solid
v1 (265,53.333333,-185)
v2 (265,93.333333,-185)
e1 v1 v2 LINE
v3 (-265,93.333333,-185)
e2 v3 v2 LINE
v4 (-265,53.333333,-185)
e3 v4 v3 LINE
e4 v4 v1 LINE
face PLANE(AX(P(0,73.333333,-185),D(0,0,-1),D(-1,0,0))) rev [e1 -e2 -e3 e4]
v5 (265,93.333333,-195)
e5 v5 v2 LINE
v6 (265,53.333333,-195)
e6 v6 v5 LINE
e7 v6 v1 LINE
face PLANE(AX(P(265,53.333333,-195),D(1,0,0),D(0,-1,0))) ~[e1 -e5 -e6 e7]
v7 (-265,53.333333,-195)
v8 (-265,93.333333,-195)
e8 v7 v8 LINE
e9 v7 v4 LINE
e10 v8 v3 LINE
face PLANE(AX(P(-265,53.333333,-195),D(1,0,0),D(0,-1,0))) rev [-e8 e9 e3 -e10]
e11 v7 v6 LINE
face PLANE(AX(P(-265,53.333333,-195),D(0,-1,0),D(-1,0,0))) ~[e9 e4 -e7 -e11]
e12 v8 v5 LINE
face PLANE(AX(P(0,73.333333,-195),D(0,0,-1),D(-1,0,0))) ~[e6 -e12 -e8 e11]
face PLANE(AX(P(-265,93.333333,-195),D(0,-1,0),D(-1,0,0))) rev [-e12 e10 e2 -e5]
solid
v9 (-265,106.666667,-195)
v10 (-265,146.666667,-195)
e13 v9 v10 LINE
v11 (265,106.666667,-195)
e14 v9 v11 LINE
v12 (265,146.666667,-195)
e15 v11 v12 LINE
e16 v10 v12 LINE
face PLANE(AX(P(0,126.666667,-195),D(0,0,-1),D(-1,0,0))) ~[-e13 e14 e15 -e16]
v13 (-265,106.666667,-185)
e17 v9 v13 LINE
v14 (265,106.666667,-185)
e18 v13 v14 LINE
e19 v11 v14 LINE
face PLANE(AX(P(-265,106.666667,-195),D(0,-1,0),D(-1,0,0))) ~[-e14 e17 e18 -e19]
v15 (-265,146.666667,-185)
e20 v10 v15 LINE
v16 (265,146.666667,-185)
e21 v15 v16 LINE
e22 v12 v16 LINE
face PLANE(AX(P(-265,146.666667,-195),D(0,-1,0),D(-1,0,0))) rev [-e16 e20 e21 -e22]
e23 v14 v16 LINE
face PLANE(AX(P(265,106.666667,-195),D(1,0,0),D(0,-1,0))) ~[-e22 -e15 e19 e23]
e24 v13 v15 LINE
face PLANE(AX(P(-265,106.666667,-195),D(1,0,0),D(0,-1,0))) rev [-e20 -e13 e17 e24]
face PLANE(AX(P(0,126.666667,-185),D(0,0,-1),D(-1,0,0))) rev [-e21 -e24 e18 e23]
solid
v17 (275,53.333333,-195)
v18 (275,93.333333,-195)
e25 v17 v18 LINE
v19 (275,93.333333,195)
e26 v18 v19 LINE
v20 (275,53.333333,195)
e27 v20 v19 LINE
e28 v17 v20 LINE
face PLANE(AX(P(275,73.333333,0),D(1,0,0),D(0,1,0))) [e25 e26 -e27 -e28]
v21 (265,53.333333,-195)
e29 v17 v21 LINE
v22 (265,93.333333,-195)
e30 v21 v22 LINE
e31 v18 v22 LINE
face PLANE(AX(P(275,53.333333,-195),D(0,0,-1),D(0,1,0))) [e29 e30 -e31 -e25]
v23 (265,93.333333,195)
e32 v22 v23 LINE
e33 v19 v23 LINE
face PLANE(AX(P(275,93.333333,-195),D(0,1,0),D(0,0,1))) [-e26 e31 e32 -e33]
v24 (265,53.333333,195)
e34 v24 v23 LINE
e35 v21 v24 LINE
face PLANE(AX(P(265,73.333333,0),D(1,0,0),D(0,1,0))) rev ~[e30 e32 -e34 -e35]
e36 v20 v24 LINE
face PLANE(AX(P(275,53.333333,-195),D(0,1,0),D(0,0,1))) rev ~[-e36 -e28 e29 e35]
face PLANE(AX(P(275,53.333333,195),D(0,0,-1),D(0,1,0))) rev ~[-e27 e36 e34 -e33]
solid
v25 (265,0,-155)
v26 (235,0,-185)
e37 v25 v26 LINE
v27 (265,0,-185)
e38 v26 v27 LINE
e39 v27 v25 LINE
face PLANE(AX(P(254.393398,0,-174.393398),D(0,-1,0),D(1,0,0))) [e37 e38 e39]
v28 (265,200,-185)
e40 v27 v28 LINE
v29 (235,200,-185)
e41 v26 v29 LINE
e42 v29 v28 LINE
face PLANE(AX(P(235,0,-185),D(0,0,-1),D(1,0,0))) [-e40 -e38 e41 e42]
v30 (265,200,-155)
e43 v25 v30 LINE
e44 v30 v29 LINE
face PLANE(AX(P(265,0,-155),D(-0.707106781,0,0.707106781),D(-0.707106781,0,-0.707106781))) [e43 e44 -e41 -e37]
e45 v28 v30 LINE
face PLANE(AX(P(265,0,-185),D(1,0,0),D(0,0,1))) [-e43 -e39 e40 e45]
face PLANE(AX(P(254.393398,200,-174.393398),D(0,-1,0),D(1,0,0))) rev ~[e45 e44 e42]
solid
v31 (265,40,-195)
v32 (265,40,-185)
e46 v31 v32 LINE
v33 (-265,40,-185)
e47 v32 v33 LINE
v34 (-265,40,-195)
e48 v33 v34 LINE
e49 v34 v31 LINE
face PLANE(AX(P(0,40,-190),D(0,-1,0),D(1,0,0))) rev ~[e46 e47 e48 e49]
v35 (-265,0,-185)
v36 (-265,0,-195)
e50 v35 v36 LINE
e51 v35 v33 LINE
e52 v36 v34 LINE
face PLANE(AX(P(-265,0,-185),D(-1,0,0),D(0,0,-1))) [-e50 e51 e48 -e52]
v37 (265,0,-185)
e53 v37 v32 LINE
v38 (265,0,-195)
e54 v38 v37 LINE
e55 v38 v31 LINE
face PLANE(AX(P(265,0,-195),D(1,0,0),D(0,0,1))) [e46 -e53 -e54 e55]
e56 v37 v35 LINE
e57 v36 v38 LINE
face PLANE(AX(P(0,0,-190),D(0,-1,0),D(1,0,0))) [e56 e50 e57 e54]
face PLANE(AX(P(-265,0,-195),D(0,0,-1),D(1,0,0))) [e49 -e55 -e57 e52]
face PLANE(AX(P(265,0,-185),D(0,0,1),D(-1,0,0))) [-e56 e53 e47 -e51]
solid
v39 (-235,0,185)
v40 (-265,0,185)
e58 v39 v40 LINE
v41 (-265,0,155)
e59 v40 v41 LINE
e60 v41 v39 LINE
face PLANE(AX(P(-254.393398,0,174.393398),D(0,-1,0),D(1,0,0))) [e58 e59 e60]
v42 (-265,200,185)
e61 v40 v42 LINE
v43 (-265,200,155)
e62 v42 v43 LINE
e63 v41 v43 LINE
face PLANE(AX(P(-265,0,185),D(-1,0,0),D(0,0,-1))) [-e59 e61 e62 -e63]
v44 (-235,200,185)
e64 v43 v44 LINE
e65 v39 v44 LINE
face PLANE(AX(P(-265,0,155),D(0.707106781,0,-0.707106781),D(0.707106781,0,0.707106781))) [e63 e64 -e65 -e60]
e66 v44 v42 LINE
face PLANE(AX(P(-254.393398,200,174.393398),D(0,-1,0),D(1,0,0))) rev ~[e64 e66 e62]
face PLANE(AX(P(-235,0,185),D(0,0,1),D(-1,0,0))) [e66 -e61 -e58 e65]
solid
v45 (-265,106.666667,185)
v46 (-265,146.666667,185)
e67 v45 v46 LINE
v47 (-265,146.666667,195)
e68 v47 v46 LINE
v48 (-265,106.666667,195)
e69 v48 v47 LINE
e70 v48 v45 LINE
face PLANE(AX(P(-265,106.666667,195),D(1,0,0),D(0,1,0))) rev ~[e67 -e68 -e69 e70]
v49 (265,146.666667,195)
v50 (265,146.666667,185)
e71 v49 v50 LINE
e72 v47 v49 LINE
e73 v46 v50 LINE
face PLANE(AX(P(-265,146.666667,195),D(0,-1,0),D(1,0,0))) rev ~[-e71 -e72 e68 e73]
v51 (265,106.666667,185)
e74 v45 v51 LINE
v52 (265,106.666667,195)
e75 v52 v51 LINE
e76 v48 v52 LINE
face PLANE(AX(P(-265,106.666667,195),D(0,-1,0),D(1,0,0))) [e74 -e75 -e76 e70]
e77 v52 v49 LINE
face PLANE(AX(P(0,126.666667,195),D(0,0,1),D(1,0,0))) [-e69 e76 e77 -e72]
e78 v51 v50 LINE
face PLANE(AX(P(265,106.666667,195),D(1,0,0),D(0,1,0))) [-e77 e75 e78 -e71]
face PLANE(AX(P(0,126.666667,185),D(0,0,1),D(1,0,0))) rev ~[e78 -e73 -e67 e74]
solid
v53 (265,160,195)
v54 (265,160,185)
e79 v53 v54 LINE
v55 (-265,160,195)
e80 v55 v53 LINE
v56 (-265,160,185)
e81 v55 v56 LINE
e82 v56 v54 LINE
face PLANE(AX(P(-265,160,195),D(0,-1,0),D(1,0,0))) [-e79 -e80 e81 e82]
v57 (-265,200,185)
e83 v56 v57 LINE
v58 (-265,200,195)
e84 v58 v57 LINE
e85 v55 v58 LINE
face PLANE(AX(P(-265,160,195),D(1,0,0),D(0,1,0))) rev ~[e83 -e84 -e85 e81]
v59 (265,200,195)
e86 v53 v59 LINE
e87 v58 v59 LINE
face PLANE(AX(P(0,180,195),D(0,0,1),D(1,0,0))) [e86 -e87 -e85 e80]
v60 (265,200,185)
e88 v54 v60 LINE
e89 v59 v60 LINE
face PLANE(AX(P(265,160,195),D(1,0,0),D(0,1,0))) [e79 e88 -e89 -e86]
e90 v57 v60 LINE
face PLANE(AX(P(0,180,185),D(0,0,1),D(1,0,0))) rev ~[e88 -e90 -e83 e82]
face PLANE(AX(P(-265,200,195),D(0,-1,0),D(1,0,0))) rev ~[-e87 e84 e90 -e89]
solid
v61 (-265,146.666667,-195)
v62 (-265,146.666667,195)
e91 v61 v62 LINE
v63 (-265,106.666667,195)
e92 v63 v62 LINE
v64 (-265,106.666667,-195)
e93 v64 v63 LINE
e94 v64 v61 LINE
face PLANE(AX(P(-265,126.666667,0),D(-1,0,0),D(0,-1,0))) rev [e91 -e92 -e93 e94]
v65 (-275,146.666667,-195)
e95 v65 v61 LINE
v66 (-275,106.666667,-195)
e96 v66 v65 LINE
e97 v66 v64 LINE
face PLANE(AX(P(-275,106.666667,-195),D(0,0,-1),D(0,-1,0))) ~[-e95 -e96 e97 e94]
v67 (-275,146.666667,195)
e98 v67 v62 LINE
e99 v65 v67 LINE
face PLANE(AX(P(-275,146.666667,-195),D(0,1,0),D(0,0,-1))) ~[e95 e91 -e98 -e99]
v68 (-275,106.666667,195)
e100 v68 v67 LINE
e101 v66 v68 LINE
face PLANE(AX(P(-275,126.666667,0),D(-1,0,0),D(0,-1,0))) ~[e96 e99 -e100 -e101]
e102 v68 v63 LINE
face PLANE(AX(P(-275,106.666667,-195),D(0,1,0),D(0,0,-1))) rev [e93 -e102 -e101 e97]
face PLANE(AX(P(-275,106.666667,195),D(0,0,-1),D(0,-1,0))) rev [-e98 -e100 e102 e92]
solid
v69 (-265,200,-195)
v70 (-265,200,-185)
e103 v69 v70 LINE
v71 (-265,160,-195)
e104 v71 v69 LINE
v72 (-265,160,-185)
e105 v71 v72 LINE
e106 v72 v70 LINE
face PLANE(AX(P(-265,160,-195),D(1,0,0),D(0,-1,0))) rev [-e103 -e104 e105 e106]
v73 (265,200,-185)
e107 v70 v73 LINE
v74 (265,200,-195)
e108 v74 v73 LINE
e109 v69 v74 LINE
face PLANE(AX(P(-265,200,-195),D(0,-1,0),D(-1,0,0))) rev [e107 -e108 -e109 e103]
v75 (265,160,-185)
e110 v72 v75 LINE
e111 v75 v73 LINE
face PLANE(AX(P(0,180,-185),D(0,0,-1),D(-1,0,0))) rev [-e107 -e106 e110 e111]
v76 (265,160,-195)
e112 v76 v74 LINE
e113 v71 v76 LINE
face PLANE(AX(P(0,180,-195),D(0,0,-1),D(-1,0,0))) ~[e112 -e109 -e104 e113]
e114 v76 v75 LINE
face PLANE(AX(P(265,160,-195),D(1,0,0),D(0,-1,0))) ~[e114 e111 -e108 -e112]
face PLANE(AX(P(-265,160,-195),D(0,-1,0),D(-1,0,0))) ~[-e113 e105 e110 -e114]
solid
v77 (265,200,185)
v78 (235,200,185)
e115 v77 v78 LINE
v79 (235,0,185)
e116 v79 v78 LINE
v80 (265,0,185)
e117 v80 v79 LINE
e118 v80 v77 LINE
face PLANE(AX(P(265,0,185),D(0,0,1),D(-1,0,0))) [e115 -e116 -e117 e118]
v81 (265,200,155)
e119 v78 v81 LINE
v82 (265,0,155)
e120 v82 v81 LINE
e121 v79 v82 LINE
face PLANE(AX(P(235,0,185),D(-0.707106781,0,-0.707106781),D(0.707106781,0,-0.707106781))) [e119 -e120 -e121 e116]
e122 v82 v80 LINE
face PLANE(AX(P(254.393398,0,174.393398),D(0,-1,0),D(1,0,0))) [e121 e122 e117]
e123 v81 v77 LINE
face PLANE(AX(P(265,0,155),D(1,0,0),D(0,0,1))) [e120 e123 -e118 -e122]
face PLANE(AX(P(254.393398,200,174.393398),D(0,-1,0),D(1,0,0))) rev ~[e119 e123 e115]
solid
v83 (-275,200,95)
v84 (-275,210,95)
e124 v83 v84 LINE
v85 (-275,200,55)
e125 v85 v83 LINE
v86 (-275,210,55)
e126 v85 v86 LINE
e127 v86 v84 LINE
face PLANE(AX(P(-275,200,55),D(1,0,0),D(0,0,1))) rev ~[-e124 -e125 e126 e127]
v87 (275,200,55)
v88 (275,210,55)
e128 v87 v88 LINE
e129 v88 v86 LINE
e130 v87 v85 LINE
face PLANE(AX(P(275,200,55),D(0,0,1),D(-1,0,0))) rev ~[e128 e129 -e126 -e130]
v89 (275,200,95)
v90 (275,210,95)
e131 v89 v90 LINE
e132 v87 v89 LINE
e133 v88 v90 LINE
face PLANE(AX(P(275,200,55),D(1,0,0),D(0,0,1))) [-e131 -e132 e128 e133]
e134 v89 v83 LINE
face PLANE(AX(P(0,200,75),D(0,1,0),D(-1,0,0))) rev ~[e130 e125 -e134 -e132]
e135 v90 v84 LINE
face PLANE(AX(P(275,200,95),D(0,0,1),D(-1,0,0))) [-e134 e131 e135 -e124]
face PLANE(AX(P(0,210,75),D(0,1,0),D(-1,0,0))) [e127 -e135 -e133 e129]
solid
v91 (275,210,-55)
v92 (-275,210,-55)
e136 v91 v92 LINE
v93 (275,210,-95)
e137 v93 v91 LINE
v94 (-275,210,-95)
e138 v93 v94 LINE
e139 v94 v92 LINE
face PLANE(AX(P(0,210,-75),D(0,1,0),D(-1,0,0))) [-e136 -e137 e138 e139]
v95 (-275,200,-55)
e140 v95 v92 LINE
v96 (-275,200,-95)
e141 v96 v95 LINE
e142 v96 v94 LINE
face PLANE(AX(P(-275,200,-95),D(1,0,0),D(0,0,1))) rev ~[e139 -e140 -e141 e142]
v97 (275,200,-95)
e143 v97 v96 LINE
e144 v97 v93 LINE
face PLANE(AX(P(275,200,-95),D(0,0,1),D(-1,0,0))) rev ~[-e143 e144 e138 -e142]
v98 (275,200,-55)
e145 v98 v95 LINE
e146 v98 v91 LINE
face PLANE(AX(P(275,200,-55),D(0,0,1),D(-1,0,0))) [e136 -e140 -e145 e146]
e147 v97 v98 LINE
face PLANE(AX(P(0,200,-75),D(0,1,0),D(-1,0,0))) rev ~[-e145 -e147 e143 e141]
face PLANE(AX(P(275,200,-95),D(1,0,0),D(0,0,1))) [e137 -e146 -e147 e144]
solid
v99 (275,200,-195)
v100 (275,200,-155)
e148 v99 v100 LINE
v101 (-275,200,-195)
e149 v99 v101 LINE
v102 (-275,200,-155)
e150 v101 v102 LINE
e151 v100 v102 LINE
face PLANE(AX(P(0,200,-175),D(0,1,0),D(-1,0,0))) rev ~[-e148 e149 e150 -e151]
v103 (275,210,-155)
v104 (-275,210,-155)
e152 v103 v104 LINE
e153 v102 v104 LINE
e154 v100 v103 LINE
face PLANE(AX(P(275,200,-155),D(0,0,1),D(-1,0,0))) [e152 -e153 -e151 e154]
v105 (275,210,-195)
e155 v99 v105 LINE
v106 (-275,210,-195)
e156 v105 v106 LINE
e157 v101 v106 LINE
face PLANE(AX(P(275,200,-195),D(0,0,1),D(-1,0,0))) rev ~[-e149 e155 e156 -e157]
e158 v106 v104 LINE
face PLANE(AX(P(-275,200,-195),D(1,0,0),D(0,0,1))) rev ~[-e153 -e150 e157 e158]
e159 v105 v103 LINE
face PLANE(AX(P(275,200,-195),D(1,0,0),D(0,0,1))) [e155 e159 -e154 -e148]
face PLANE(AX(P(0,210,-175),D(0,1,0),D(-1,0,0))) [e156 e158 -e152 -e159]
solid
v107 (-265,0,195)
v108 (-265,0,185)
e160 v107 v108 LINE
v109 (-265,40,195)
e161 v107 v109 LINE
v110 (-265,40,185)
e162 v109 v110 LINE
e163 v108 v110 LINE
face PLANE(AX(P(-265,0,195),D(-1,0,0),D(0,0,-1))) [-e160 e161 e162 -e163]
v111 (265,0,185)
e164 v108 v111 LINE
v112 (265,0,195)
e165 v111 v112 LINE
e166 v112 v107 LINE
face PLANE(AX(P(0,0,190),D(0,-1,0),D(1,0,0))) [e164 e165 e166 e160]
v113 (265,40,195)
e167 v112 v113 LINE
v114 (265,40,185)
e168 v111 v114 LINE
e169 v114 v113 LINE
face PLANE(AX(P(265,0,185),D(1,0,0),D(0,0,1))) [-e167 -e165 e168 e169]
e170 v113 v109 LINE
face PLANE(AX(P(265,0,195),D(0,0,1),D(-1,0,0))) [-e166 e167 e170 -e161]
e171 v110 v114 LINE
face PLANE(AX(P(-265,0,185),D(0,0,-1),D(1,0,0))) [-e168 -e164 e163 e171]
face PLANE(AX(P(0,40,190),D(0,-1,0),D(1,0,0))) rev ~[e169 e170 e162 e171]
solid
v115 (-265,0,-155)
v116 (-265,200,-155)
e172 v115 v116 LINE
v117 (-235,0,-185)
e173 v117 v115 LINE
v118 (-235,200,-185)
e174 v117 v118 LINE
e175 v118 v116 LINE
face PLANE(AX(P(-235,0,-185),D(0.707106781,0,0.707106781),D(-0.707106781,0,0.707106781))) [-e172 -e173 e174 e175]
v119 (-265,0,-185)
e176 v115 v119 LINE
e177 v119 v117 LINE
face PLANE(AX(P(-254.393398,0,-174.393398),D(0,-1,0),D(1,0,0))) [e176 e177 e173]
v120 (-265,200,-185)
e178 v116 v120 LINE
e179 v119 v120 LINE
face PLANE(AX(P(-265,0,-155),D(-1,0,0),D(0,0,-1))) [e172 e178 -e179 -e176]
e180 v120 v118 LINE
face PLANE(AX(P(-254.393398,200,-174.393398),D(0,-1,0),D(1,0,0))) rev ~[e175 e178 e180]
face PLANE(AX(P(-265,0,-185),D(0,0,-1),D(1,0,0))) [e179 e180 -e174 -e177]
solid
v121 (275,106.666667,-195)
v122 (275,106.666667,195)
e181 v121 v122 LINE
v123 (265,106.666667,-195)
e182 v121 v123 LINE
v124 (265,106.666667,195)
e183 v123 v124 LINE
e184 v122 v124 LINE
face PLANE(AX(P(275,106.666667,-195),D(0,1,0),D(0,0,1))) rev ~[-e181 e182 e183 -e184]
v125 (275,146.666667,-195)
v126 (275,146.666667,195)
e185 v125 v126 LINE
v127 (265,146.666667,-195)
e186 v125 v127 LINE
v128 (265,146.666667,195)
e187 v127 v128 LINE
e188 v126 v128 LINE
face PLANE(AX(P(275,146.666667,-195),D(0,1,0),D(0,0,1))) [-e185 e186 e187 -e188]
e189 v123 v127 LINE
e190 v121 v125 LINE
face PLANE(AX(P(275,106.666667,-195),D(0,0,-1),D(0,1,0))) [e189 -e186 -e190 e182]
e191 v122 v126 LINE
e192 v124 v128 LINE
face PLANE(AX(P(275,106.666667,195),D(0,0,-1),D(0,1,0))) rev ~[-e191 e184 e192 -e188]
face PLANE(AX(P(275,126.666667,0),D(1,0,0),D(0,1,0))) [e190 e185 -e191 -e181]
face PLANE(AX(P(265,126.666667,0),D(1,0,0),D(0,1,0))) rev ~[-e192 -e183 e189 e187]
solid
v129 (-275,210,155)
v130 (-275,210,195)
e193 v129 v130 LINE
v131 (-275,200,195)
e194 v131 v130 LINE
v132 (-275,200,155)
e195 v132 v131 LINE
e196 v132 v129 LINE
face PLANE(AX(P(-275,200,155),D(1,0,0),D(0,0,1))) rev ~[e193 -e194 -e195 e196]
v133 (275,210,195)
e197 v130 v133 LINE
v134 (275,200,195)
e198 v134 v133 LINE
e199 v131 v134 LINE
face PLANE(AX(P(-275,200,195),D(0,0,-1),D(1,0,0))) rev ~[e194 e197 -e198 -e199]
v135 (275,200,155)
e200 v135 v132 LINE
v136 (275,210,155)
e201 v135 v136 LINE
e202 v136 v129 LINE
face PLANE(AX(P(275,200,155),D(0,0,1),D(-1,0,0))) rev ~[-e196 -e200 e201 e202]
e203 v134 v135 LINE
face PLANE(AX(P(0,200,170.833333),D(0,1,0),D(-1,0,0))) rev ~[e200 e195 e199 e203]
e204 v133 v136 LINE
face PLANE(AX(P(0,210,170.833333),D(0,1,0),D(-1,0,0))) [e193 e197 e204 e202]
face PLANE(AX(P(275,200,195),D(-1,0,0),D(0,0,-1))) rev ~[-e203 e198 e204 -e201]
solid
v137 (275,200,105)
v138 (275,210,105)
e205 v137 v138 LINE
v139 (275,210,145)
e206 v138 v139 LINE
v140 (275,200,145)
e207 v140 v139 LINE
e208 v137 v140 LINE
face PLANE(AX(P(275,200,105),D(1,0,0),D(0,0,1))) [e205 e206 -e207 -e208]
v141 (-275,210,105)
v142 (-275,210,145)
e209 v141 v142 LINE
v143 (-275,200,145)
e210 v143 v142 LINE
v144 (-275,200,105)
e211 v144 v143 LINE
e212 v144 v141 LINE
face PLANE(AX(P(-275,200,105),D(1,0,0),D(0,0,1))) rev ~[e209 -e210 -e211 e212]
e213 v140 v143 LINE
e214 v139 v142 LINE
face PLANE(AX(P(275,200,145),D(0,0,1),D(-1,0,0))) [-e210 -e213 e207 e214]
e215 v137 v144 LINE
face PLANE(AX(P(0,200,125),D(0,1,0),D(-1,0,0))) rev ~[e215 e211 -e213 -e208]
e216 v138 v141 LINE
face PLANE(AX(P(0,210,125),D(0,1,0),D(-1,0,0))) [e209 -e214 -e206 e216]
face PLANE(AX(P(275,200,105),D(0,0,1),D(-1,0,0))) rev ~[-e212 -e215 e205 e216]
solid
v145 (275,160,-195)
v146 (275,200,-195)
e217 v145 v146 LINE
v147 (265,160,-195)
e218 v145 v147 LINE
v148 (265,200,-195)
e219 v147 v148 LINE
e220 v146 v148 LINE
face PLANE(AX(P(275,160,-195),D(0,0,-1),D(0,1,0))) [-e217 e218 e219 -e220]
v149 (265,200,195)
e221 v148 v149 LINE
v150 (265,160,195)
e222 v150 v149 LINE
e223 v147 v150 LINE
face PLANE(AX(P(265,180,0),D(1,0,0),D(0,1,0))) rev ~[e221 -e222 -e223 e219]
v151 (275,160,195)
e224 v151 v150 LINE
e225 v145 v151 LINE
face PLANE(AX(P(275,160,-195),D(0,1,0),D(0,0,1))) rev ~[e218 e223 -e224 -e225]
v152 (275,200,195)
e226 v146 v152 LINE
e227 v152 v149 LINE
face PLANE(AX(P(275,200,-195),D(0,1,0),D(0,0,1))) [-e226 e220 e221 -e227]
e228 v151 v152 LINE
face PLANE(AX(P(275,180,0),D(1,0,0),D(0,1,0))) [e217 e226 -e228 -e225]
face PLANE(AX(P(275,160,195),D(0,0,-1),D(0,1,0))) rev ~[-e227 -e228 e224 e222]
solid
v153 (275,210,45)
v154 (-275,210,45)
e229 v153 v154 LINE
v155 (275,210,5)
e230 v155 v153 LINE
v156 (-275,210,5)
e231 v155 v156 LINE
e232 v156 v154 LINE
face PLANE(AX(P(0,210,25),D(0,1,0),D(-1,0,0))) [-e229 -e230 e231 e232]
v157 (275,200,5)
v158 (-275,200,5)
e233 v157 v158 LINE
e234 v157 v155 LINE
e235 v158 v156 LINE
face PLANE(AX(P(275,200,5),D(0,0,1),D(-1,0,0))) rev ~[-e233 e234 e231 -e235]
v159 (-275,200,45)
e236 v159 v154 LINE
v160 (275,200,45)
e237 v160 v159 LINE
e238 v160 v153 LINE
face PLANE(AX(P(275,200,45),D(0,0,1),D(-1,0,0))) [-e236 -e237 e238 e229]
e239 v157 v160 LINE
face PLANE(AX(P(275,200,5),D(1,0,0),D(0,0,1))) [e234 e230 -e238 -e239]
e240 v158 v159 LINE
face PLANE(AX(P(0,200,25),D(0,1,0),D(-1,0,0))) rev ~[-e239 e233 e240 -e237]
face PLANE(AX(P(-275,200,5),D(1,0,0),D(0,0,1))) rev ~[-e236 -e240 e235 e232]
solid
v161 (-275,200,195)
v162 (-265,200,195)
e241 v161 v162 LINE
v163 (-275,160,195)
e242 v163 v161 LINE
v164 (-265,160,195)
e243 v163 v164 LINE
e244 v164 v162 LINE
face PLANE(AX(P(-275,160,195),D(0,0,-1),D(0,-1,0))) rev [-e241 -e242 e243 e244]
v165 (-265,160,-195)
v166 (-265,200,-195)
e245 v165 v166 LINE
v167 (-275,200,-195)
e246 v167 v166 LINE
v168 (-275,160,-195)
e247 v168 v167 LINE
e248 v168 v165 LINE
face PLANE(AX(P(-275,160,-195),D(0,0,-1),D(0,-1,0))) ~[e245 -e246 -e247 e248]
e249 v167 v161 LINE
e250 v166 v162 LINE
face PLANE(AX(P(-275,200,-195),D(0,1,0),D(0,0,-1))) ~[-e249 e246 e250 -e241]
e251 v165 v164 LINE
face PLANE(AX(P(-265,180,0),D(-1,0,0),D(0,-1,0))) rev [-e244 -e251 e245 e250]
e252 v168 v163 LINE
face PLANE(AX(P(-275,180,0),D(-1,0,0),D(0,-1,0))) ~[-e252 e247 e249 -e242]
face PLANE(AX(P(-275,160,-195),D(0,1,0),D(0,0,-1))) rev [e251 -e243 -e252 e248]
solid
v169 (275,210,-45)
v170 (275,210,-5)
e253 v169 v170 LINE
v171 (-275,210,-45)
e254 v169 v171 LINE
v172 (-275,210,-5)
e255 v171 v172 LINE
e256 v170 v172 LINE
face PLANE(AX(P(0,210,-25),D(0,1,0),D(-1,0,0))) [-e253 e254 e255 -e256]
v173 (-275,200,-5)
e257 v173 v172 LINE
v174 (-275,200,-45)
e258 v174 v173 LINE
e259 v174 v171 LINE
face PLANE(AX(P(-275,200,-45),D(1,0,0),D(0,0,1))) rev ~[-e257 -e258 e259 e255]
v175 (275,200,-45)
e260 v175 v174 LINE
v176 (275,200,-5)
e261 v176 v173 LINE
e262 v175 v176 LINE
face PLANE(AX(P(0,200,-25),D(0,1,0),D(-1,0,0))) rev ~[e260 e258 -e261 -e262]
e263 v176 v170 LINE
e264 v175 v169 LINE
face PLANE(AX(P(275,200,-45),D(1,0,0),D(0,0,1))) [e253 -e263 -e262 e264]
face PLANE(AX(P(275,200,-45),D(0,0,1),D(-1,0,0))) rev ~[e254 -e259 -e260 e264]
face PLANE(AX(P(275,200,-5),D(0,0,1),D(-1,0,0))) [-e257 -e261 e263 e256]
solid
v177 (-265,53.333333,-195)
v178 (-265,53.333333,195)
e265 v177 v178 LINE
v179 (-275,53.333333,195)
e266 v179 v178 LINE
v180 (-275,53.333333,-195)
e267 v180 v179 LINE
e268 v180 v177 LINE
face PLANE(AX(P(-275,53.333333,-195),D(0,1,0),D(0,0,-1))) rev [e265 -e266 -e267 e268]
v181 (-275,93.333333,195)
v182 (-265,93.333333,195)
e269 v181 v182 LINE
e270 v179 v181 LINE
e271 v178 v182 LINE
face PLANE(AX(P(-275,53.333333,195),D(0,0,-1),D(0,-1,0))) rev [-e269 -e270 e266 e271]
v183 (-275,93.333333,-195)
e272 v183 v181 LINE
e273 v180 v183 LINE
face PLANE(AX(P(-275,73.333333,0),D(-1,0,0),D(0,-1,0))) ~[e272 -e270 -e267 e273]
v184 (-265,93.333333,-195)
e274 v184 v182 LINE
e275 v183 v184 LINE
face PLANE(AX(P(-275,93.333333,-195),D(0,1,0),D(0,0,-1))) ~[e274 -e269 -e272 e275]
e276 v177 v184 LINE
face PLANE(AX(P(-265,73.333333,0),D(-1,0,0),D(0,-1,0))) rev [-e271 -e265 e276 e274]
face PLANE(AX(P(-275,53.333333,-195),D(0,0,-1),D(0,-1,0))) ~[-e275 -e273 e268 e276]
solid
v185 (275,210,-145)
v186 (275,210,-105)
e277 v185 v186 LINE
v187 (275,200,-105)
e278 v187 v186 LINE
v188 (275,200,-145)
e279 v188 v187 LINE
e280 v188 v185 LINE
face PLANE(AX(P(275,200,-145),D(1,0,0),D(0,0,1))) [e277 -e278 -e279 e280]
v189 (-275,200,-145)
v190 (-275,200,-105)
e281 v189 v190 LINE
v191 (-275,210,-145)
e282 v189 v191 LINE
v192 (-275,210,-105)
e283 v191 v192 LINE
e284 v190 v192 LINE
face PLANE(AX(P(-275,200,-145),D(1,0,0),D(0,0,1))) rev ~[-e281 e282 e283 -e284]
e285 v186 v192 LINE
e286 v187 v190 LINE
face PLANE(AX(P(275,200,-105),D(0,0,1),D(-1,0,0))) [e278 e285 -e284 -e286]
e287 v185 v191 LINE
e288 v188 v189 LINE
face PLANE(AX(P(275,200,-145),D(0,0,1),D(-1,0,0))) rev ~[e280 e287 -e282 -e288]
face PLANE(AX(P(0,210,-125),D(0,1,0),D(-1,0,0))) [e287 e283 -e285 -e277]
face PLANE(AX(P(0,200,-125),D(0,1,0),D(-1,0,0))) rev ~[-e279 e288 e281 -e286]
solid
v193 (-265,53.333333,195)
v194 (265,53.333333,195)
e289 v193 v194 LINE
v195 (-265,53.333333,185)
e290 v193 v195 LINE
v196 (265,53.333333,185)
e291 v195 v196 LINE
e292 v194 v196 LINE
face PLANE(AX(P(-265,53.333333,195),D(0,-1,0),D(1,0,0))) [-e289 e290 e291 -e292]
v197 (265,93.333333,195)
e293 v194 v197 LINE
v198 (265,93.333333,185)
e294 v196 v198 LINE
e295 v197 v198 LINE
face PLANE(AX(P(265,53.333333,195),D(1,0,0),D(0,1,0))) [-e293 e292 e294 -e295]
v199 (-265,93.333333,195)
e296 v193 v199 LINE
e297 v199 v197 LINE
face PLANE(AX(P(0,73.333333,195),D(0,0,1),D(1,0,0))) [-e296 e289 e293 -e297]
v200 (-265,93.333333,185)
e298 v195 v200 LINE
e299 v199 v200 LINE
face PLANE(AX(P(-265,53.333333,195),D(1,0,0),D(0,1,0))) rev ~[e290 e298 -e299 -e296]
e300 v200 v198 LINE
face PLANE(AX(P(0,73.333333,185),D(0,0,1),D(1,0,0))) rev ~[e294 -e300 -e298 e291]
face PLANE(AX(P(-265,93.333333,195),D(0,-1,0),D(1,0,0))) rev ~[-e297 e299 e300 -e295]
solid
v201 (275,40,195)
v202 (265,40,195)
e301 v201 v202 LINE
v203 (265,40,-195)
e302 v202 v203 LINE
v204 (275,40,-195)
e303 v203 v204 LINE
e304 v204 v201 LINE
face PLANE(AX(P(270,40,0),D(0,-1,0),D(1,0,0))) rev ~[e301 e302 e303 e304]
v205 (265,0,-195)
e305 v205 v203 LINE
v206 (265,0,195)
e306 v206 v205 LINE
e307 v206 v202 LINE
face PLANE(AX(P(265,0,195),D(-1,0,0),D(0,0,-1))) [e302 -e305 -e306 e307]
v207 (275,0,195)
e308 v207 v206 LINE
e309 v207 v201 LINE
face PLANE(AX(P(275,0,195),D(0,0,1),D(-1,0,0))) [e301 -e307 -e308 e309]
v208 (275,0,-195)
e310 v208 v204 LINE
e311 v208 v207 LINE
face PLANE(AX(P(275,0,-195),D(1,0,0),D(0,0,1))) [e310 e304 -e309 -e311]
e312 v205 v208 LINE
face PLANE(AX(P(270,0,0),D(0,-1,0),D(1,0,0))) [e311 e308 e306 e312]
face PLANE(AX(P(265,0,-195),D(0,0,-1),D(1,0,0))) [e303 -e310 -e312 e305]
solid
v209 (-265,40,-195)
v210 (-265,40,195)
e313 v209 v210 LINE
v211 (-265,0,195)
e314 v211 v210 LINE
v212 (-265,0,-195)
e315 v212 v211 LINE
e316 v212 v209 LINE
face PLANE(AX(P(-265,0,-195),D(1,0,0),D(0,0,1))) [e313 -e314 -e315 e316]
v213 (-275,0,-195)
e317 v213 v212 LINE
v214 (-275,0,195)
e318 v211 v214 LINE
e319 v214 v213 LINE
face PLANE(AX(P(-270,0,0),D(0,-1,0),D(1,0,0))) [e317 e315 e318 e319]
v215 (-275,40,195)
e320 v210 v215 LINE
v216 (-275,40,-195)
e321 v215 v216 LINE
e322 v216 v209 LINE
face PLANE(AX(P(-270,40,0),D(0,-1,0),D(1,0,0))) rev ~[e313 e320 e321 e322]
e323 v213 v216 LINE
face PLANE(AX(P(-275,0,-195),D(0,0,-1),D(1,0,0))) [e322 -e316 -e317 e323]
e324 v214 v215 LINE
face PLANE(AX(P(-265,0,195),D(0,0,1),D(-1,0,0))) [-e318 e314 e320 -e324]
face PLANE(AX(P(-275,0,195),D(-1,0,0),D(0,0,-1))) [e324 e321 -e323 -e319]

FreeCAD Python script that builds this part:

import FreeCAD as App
import Part
import Sketcher

V = App.Vector


def add_polygon(sketch, points):
    """Adds a closed chain of lines whose ends are joined by coincident constraints."""
    first, n = sketch.GeometryCount, len(points)
    for a, b in zip(points, points[1:] + points[:1]):
        sketch.addGeometry(Part.LineSegment(App.Vector(*a, 0), App.Vector(*b, 0)), False)
    for i in range(n):
        sketch.addConstraint(Sketcher.Constraint("Coincident", first + i, 2, first + (i + 1) % n, 1))

doc = App.newDocument("Part")
body = doc.addObject("PartDesign::Body", "Body")

sketch1 = body.newObject("Sketcher::SketchObject", "Sketch")
sketch1.AttachmentSupport = (doc.getObject("XZ_Plane"), [""])
sketch1.MapMode = "FlatFace"
add_polygon(sketch1, [(-265, 195), (-275, 195), (-275, -195), (-265, -195)])
sketch1.addConstraint(Sketcher.Constraint("Horizontal", 0))
sketch1.addConstraint(Sketcher.Constraint("Vertical", 1))
sketch1.addConstraint(Sketcher.Constraint("Horizontal", 2))
sketch1.addConstraint(Sketcher.Constraint("Vertical", 3))
sketch1.addConstraint(Sketcher.Constraint("DistanceX", 0, 2, 0, 1, 10.0))
sketch1.addConstraint(Sketcher.Constraint("DistanceY", 1, 2, 1, 1, 390.0))
sketch1.addConstraint(Sketcher.Constraint("DistanceX", 0, 2, -1, 1, 275.0))
sketch1.addConstraint(Sketcher.Constraint("DistanceY", -1, 1, 0, 2, 195.0))
pad1 = body.newObject("PartDesign::Pad", "Pad")
pad1.Profile = sketch1
pad1.Length = 40
pad1.Reversed = True
body2 = doc.addObject("PartDesign::Body", "Body001")

sketch2 = body2.newObject("Sketcher::SketchObject", "Sketch001")
sketch2.AttachmentSupport = (doc.getObject("XZ_Plane001"), [""])
sketch2.MapMode = "FlatFace"
add_polygon(sketch2, [(275, 195), (265, 195), (265, -195), (275, -195)])
sketch2.addConstraint(Sketcher.Constraint("Horizontal", 0))
sketch2.addConstraint(Sketcher.Constraint("Vertical", 1))
sketch2.addConstraint(Sketcher.Constraint("Horizontal", 2))
sketch2.addConstraint(Sketcher.Constraint("Vertical", 3))
sketch2.addConstraint(Sketcher.Constraint("DistanceX", 0, 2, 0, 1, 10.0))
sketch2.addConstraint(Sketcher.Constraint("DistanceY", 1, 2, 1, 1, 390.0))
sketch2.addConstraint(Sketcher.Constraint("DistanceX", -1, 1, 0, 2, 265.0))
sketch2.addConstraint(Sketcher.Constraint("DistanceY", -1, 1, 0, 2, 195.0))
pad2 = body2.newObject("PartDesign::Pad", "Pad001")
pad2.Profile = sketch2
pad2.Length = 40
pad2.Reversed = True
body3 = doc.addObject("PartDesign::Body", "Body002")

sketch3 = body3.newObject("Sketcher::SketchObject", "Sketch002")
sketch3.AttachmentSupport = (doc.getObject("XZ_Plane002"), [""])
sketch3.MapMode = "FlatFace"
add_polygon(sketch3, [(-235, 185), (-265, 185), (-265, 155)])
sketch3.addConstraint(Sketcher.Constraint("Horizontal", 0))
sketch3.addConstraint(Sketcher.Constraint("Vertical", 1))
sketch3.addConstraint(Sketcher.Constraint("Equal", 0, 1))
sketch3.addConstraint(Sketcher.Constraint("DistanceX", 0, 2, 0, 1, 30.0))
sketch3.addConstraint(Sketcher.Constraint("DistanceX", 0, 2, -1, 1, 265.0))
sketch3.addConstraint(Sketcher.Constraint("DistanceY", -1, 1, 0, 2, 185.0))
pad3 = body3.newObject("PartDesign::Pad", "Pad002")
pad3.Profile = sketch3
pad3.Length = 200
pad3.Reversed = True
body4 = doc.addObject("PartDesign::Body", "Body003")

sketch4 = body4.newObject("Sketcher::SketchObject", "Sketch003")
sketch4.AttachmentSupport = (doc.getObject("XZ_Plane003"), [""])
sketch4.MapMode = "FlatFace"
add_polygon(sketch4, [(265, 155), (265, 185), (235, 185)])
sketch4.addConstraint(Sketcher.Constraint("Vertical", 0))
sketch4.addConstraint(Sketcher.Constraint("Horizontal", 1))
sketch4.addConstraint(Sketcher.Constraint("Equal", 1, 0))
sketch4.addConstraint(Sketcher.Constraint("DistanceX", 1, 2, 1, 1, 30.0))
sketch4.addConstraint(Sketcher.Constraint("DistanceX", -1, 1, 0, 2, 265.0))
sketch4.addConstraint(Sketcher.Constraint("DistanceY", -1, 1, 0, 2, 185.0))
pad4 = body4.newObject("PartDesign::Pad", "Pad003")
pad4.Profile = sketch4
pad4.Length = 200
pad4.Reversed = True
body5 = doc.addObject("PartDesign::Body", "Body004")

sketch5 = body5.newObject("Sketcher::SketchObject", "Sketch004")
sketch5.AttachmentSupport = (doc.getObject("XZ_Plane004"), [""])
sketch5.MapMode = "FlatFace"
add_polygon(sketch5, [(235, -185), (265, -185), (265, -155)])
sketch5.addConstraint(Sketcher.Constraint("Horizontal", 0))
sketch5.addConstraint(Sketcher.Constraint("Vertical", 1))
sketch5.addConstraint(Sketcher.Constraint("Equal", 0, 1))
sketch5.addConstraint(Sketcher.Constraint("DistanceX", 0, 1, 0, 2, 30.0))
sketch5.addConstraint(Sketcher.Constraint("DistanceX", -1, 1, 0, 2, 265.0))
sketch5.addConstraint(Sketcher.Constraint("DistanceY", 0, 2, -1, 1, 185.0))
pad5 = body5.newObject("PartDesign::Pad", "Pad004")
pad5.Profile = sketch5
pad5.Length = 200
pad5.Reversed = True
body6 = doc.addObject("PartDesign::Body", "Body005")

sketch6 = body6.newObject("Sketcher::SketchObject", "Sketch005")
sketch6.AttachmentSupport = (doc.getObject("XZ_Plane005"), [""])
sketch6.MapMode = "FlatFace"
add_polygon(sketch6, [(-265, -155), (-265, -185), (-235, -185)])
sketch6.addConstraint(Sketcher.Constraint("Vertical", 0))
sketch6.addConstraint(Sketcher.Constraint("Horizontal", 1))
sketch6.addConstraint(Sketcher.Constraint("Equal", 1, 0))
sketch6.addConstraint(Sketcher.Constraint("DistanceX", 1, 1, 1, 2, 30.0))
sketch6.addConstraint(Sketcher.Constraint("DistanceX", 0, 2, -1, 1, 265.0))
sketch6.addConstraint(Sketcher.Constraint("DistanceY", 0, 2, -1, 1, 185.0))
pad6 = body6.newObject("PartDesign::Pad", "Pad005")
pad6.Profile = sketch6
pad6.Length = 200
pad6.Reversed = True
body7 = doc.addObject("PartDesign::Body", "Body006")

sketch7 = body7.newObject("Sketcher::SketchObject", "Sketch006")
sketch7.AttachmentSupport = (doc.getObject("XZ_Plane006"), [""])
sketch7.MapMode = "FlatFace"
add_polygon(sketch7, [(265, 195), (-265, 195), (-265, 185), (265, 185)])
sketch7.addConstraint(Sketcher.Constraint("Horizontal", 0))
sketch7.addConstraint(Sketcher.Constraint("Vertical", 1))
sketch7.addConstraint(Sketcher.Constraint("Horizontal", 2))
sketch7.addConstraint(Sketcher.Constraint("Vertical", 3))
sketch7.addConstraint(Sketcher.Constraint("DistanceX", 0, 2, 0, 1, 530.0))
sketch7.addConstraint(Sketcher.Constraint("DistanceY", 1, 2, 1, 1, 10.0))
sketch7.addConstraint(Sketcher.Constraint("DistanceX", 0, 2, -1, 1, 265.0))
sketch7.addConstraint(Sketcher.Constraint("DistanceY", -1, 1, 0, 2, 195.0))
pad7 = body7.newObject("PartDesign::Pad", "Pad006")
pad7.Profile = sketch7
pad7.Length = 40
pad7.Reversed = True
body8 = doc.addObject("PartDesign::Body", "Body007")

sketch8 = body8.newObject("Sketcher::SketchObject", "Sketch007")
sketch8.AttachmentSupport = (doc.getObject("XZ_Plane007"), [""])
sketch8.MapMode = "FlatFace"
add_polygon(sketch8, [(-265, -185), (-265, -195), (265, -195), (265, -185)])
sketch8.addConstraint(Sketcher.Constraint("Vertical", 0))
sketch8.addConstraint(Sketcher.Constraint("Horizontal", 1))
sketch8.addConstraint(Sketcher.Constraint("Vertical", 2))
sketch8.addConstraint(Sketcher.Constraint("Horizontal", 3))
sketch8.addConstraint(Sketcher.Constraint("DistanceX", 1, 1, 1, 2, 530.0))
sketch8.addConstraint(Sketcher.Constraint("DistanceY", 0, 2, 0, 1, 10.0))
sketch8.addConstraint(Sketcher.Constraint("DistanceX", 0, 2, -1, 1, 265.0))
sketch8.addConstraint(Sketcher.Constraint("DistanceY", 0, 2, -1, 1, 195.0))
pad8 = body8.newObject("PartDesign::Pad", "Pad007")
pad8.Profile = sketch8
pad8.Length = 40
pad8.Reversed = True
body9 = doc.addObject("PartDesign::Body", "Body008")

sketch9 = body9.newObject("Sketcher::SketchObject", "Sketch008")
sketch9.AttachmentSupport = (doc.getObject("YZ_Plane008"), [""])
sketch9.MapMode = "FlatFace"
sketch9.AttachmentOffset = App.Placement(V(0, 0, 275), App.Rotation())
add_polygon(sketch9, [(53, 195), (53, -195), (93, -195), (93, 195)])
sketch9.addConstraint(Sketcher.Constraint("Vertical", 0))
sketch9.addConstraint(Sketcher.Constraint("Horizontal", 1))
sketch9.addConstraint(Sketcher.Constraint("Vertical", 2))
sketch9.addConstraint(Sketcher.Constraint("Horizontal", 3))
sketch9.addConstraint(Sketcher.Constraint("DistanceX", 1, 1, 1, 2, 40.0))
sketch9.addConstraint(Sketcher.Constraint("DistanceY", 0, 2, 0, 1, 390.0))
sketch9.addConstraint(Sketcher.Constraint("DistanceY", 0, 2, -1, 1, 195.0))
sketch9.addConstraint(Sketcher.Constraint("DistanceX", -1, 1, 0, 2, 53.333333))
pad9 = body9.newObject("PartDesign::Pad", "Pad008")
pad9.Profile = sketch9
pad9.Length = 10
pad9.Reversed = True
body10 = doc.addObject("PartDesign::Body", "Body009")

sketch10 = body10.newObject("Sketcher::SketchObject", "Sketch009")
sketch10.AttachmentSupport = (doc.getObject("YZ_Plane009"), [""])
sketch10.MapMode = "FlatFace"
sketch10.AttachmentOffset = App.Placement(V(0, 0, 275), App.Rotation())
add_polygon(sketch10, [(107, 195), (107, -195), (147, -195), (147, 195)])
sketch10.addConstraint(Sketcher.Constraint("Vertical", 0))
sketch10.addConstraint(Sketcher.Constraint("Horizontal", 1))
sketch10.addConstraint(Sketcher.Constraint("Vertical", 2))
sketch10.addConstraint(Sketcher.Constraint("Horizontal", 3))
sketch10.addConstraint(Sketcher.Constraint("DistanceX", 1, 1, 1, 2, 40.0))
sketch10.addConstraint(Sketcher.Constraint("DistanceY", 0, 2, 0, 1, 390.0))
sketch10.addConstraint(Sketcher.Constraint("DistanceY", 0, 2, -1, 1, 195.0))
sketch10.addConstraint(Sketcher.Constraint("DistanceX", -1, 1, 0, 2, 106.666667))
pad10 = body10.newObject("PartDesign::Pad", "Pad009")
pad10.Profile = sketch10
pad10.Length = 10
pad10.Reversed = True
body11 = doc.addObject("PartDesign::Body", "Body010")

sketch11 = body11.newObject("Sketcher::SketchObject", "Sketch010")
sketch11.AttachmentSupport = (doc.getObject("YZ_Plane010"), [""])
sketch11.MapMode = "FlatFace"
sketch11.AttachmentOffset = App.Placement(V(0, 0, 275), App.Rotation())
add_polygon(sketch11, [(160, 195), (160, -195), (200, -195), (200, 195)])
sketch11.addConstraint(Sketcher.Constraint("Vertical", 0))
sketch11.addConstraint(Sketcher.Constraint("Horizontal", 1))
sketch11.addConstraint(Sketcher.Constraint("Vertical", 2))
sketch11.addConstraint(Sketcher.Constraint("Horizontal", 3))
sketch11.addConstraint(Sketcher.Constraint("DistanceX", 1, 1, 1, 2, 40.0))
sketch11.addConstraint(Sketcher.Constraint("DistanceY", 0, 2, 0, 1, 390.0))
sketch11.addConstraint(Sketcher.Constraint("DistanceX", -1, 1, 0, 2, 160.0))
sketch11.addConstraint(Sketcher.Constraint("DistanceY", 0, 2, -1, 1, 195.0))
pad11 = body11.newObject("PartDesign::Pad", "Pad010")
pad11.Profile = sketch11
pad11.Length = 10
pad11.Reversed = True
body12 = doc.addObject("PartDesign::Body", "Body011")
doc.recompute()

mirroring = doc.addObject("Part::Mirroring", "Mirroring")
mirroring.Source = body9
mirroring.Base = V(0, 0, 0)
mirroring.Normal = V(1, 0, 0)
body12.BaseFeature = mirroring
doc.recompute()
body13 = doc.addObject("PartDesign::Body", "Body012")
doc.recompute()

mirroring2 = doc.addObject("Part::Mirroring", "Mirroring001")
mirroring2.Source = body10
mirroring2.Base = V(0, 0, 0)
mirroring2.Normal = V(1, 0, 0)
body13.BaseFeature = mirroring2
doc.recompute()
body14 = doc.addObject("PartDesign::Body", "Body013")
doc.recompute()

mirroring3 = doc.addObject("Part::Mirroring", "Mirroring002")
mirroring3.Source = body11
mirroring3.Base = V(0, 0, 0)
mirroring3.Normal = V(1, 0, 0)
body14.BaseFeature = mirroring3
doc.recompute()
body15 = doc.addObject("PartDesign::Body", "Body014")

sketch12 = body15.newObject("Sketcher::SketchObject", "Sketch011")
sketch12.AttachmentSupport = (doc.getObject("XY_Plane014"), [""])
sketch12.MapMode = "FlatFace"
sketch12.AttachmentOffset = App.Placement(V(0, 0, 195), App.Rotation())
add_polygon(sketch12, [(-265, 93), (-265, 53), (265, 53), (265, 93)])
sketch12.addConstraint(Sketcher.Constraint("Vertical", 0))
sketch12.addConstraint(Sketcher.Constraint("Horizontal", 1))
sketch12.addConstraint(Sketcher.Constraint("Vertical", 2))
sketch12.addConstraint(Sketcher.Constraint("Horizontal", 3))
sketch12.addConstraint(Sketcher.Constraint("DistanceX", 1, 1, 1, 2, 530.0))
sketch12.addConstraint(Sketcher.Constraint("DistanceY", 0, 2, 0, 1, 40.0))
sketch12.addConstraint(Sketcher.Constraint("DistanceX", 0, 2, -1, 1, 265.0))
sketch12.addConstraint(Sketcher.Constraint("DistanceY", -1, 1, 0, 2, 53.333333))
pad12 = body15.newObject("PartDesign::Pad", "Pad011")
pad12.Profile = sketch12
pad12.Length = 10
pad12.Reversed = True
body16 = doc.addObject("PartDesign::Body", "Body015")

sketch13 = body16.newObject("Sketcher::SketchObject", "Sketch012")
sketch13.AttachmentSupport = (doc.getObject("XY_Plane015"), [""])
sketch13.MapMode = "FlatFace"
sketch13.AttachmentOffset = App.Placement(V(0, 0, 195), App.Rotation())
add_polygon(sketch13, [(-265, 147), (-265, 107), (265, 107), (265, 147)])
sketch13.addConstraint(Sketcher.Constraint("Vertical", 0))
sketch13.addConstraint(Sketcher.Constraint("Horizontal", 1))
sketch13.addConstraint(Sketcher.Constraint("Vertical", 2))
sketch13.addConstraint(Sketcher.Constraint("Horizontal", 3))
sketch13.addConstraint(Sketcher.Constraint("DistanceX", 1, 1, 1, 2, 530.0))
sketch13.addConstraint(Sketcher.Constraint("DistanceY", 0, 2, 0, 1, 40.0))
sketch13.addConstraint(Sketcher.Constraint("DistanceX", 0, 2, -1, 1, 265.0))
sketch13.addConstraint(Sketcher.Constraint("DistanceY", -1, 1, 0, 2, 106.666667))
pad13 = body16.newObject("PartDesign::Pad", "Pad012")
pad13.Profile = sketch13
pad13.Length = 10
pad13.Reversed = True
body17 = doc.addObject("PartDesign::Body", "Body016")

sketch14 = body17.newObject("Sketcher::SketchObject", "Sketch013")
sketch14.AttachmentSupport = (doc.getObject("XY_Plane016"), [""])
sketch14.MapMode = "FlatFace"
sketch14.AttachmentOffset = App.Placement(V(0, 0, 195), App.Rotation())
add_polygon(sketch14, [(-265, 200), (-265, 160), (265, 160), (265, 200)])
sketch14.addConstraint(Sketcher.Constraint("Vertical", 0))
sketch14.addConstraint(Sketcher.Constraint("Horizontal", 1))
sketch14.addConstraint(Sketcher.Constraint("Vertical", 2))
sketch14.addConstraint(Sketcher.Constraint("Horizontal", 3))
sketch14.addConstraint(Sketcher.Constraint("DistanceX", 1, 1, 1, 2, 530.0))
sketch14.addConstraint(Sketcher.Constraint("DistanceY", 0, 2, 0, 1, 40.0))
sketch14.addConstraint(Sketcher.Constraint("DistanceX", 0, 2, -1, 1, 265.0))
sketch14.addConstraint(Sketcher.Constraint("DistanceY", -1, 1, 0, 2, 160.0))
pad14 = body17.newObject("PartDesign::Pad", "Pad013")
pad14.Profile = sketch14
pad14.Length = 10
pad14.Reversed = True
body18 = doc.addObject("PartDesign::Body", "Body017")
doc.recompute()

mirroring4 = doc.addObject("Part::Mirroring", "Mirroring003")
mirroring4.Source = body15
mirroring4.Base = V(0, 0, 0)
mirroring4.Normal = V(0, 0, 1)
body18.BaseFeature = mirroring4
doc.recompute()
body19 = doc.addObject("PartDesign::Body", "Body018")
doc.recompute()

mirroring5 = doc.addObject("Part::Mirroring", "Mirroring004")
mirroring5.Source = body16
mirroring5.Base = V(0, 0, 0)
mirroring5.Normal = V(0, 0, 1)
body19.BaseFeature = mirroring5
doc.recompute()
body20 = doc.addObject("PartDesign::Body", "Body019")
doc.recompute()

mirroring6 = doc.addObject("Part::Mirroring", "Mirroring005")
mirroring6.Source = body17
mirroring6.Base = V(0, 0, 0)
mirroring6.Normal = V(0, 0, 1)
body20.BaseFeature = mirroring6
doc.recompute()
body21 = doc.addObject("PartDesign::Body", "Body020")

sketch15 = body21.newObject("Sketcher::SketchObject", "Sketch014")
sketch15.AttachmentSupport = (doc.getObject("XZ_Plane020"), [""])
sketch15.MapMode = "FlatFace"
sketch15.AttachmentOffset = App.Placement(V(0, 0, -200), App.Rotation())
add_polygon(sketch15, [(275, 195), (275, 155), (-275, 155), (-275, 195)])
sketch15.addConstraint(Sketcher.Constraint("Vertical", 0))
sketch15.addConstraint(Sketcher.Constraint("Horizontal", 1))
sketch15.addConstraint(Sketcher.Constraint("Vertical", 2))
sketch15.addConstraint(Sketcher.Constraint("Horizontal", 3))
sketch15.addConstraint(Sketcher.Constraint("DistanceX", 1, 2, 1, 1, 550.0))
sketch15.addConstraint(Sketcher.Constraint("DistanceY", 0, 2, 0, 1, 40.0))
sketch15.addConstraint(Sketcher.Constraint("DistanceX", -1, 1, 0, 2, 275.0))
sketch15.addConstraint(Sketcher.Constraint("DistanceY", -1, 1, 0, 2, 155.0))
pad15 = body21.newObject("PartDesign::Pad", "Pad014")
pad15.Profile = sketch15
pad15.Length = 10
pad15.Reversed = True
body22 = doc.addObject("PartDesign::Body", "Body021")

sketch16 = body22.newObject("Sketcher::SketchObject", "Sketch015")
sketch16.AttachmentSupport = (doc.getObject("XZ_Plane021"), [""])
sketch16.MapMode = "FlatFace"
sketch16.AttachmentOffset = App.Placement(V(0, 0, -200), App.Rotation())
add_polygon(sketch16, [(275, 145), (275, 105), (-275, 105), (-275, 145)])
sketch16.addConstraint(Sketcher.Constraint("Vertical", 0))
sketch16.addConstraint(Sketcher.Constraint("Horizontal", 1))
sketch16.addConstraint(Sketcher.Constraint("Vertical", 2))
sketch16.addConstraint(Sketcher.Constraint("Horizontal", 3))
sketch16.addConstraint(Sketcher.Constraint("DistanceX", 1, 2, 1, 1, 550.0))
sketch16.addConstraint(Sketcher.Constraint("DistanceY", 0, 2, 0, 1, 40.0))
sketch16.addConstraint(Sketcher.Constraint("DistanceX", -1, 1, 0, 2, 275.0))
sketch16.addConstraint(Sketcher.Constraint("DistanceY", -1, 1, 0, 2, 105.0))
pad16 = body22.newObject("PartDesign::Pad", "Pad015")
pad16.Profile = sketch16
pad16.Length = 10
pad16.Reversed = True
body23 = doc.addObject("PartDesign::Body", "Body022")

sketch17 = body23.newObject("Sketcher::SketchObject", "Sketch016")
sketch17.AttachmentSupport = (doc.getObject("XZ_Plane022"), [""])
sketch17.MapMode = "FlatFace"
sketch17.AttachmentOffset = App.Placement(V(0, 0, -200), App.Rotation())
add_polygon(sketch17, [(275, 95), (275, 55), (-275, 55), (-275, 95)])
sketch17.addConstraint(Sketcher.Constraint("Vertical", 0))
sketch17.addConstraint(Sketcher.Constraint("Horizontal", 1))
sketch17.addConstraint(Sketcher.Constraint("Vertical", 2))
sketch17.addConstraint(Sketcher.Constraint("Horizontal", 3))
sketch17.addConstraint(Sketcher.Constraint("DistanceX", 1, 2, 1, 1, 550.0))
sketch17.addConstraint(Sketcher.Constraint("DistanceY", 0, 2, 0, 1, 40.0))
sketch17.addConstraint(Sketcher.Constraint("DistanceX", -1, 1, 0, 2, 275.0))
sketch17.addConstraint(Sketcher.Constraint("DistanceY", -1, 1, 0, 2, 55.0))
pad17 = body23.newObject("PartDesign::Pad", "Pad016")
pad17.Profile = sketch17
pad17.Length = 10
pad17.Reversed = True
body24 = doc.addObject("PartDesign::Body", "Body023")

sketch18 = body24.newObject("Sketcher::SketchObject", "Sketch017")
sketch18.AttachmentSupport = (doc.getObject("XZ_Plane023"), [""])
sketch18.MapMode = "FlatFace"
sketch18.AttachmentOffset = App.Placement(V(0, 0, -200), App.Rotation())
add_polygon(sketch18, [(275, 45), (275, 5), (-275, 5), (-275, 45)])
sketch18.addConstraint(Sketcher.Constraint("Vertical", 0))
sketch18.addConstraint(Sketcher.Constraint("Horizontal", 1))
sketch18.addConstraint(Sketcher.Constraint("Vertical", 2))
sketch18.addConstraint(Sketcher.Constraint("Horizontal", 3))
sketch18.addConstraint(Sketcher.Constraint("DistanceX", 1, 2, 1, 1, 550.0))
sketch18.addConstraint(Sketcher.Constraint("DistanceY", 0, 2, 0, 1, 40.0))
sketch18.addConstraint(Sketcher.Constraint("DistanceX", -1, 1, 0, 2, 275.0))
sketch18.addConstraint(Sketcher.Constraint("DistanceY", -1, 1, 0, 2, 5.0))
pad18 = body24.newObject("PartDesign::Pad", "Pad017")
pad18.Profile = sketch18
pad18.Length = 10
pad18.Reversed = True
body25 = doc.addObject("PartDesign::Body", "Body024")

sketch19 = body25.newObject("Sketcher::SketchObject", "Sketch018")
sketch19.AttachmentSupport = (doc.getObject("XZ_Plane024"), [""])
sketch19.MapMode = "FlatFace"
sketch19.AttachmentOffset = App.Placement(V(0, 0, -200), App.Rotation())
add_polygon(sketch19, [(275, -5), (275, -45), (-275, -45), (-275, -5)])
sketch19.addConstraint(Sketcher.Constraint("Vertical", 0))
sketch19.addConstraint(Sketcher.Constraint("Horizontal", 1))
sketch19.addConstraint(Sketcher.Constraint("Vertical", 2))
sketch19.addConstraint(Sketcher.Constraint("Horizontal", 3))
sketch19.addConstraint(Sketcher.Constraint("DistanceX", 1, 2, 1, 1, 550.0))
sketch19.addConstraint(Sketcher.Constraint("DistanceY", 0, 2, 0, 1, 40.0))
sketch19.addConstraint(Sketcher.Constraint("DistanceX", -1, 1, 0, 2, 275.0))
sketch19.addConstraint(Sketcher.Constraint("DistanceY", 0, 2, -1, 1, 45.0))
pad19 = body25.newObject("PartDesign::Pad", "Pad018")
pad19.Profile = sketch19
pad19.Length = 10
pad19.Reversed = True
body26 = doc.addObject("PartDesign::Body", "Body025")

sketch20 = body26.newObject("Sketcher::SketchObject", "Sketch019")
sketch20.AttachmentSupport = (doc.getObject("XZ_Plane025"), [""])
sketch20.MapMode = "FlatFace"
sketch20.AttachmentOffset = App.Placement(V(0, 0, -200), App.Rotation())
add_polygon(sketch20, [(275, -55), (275, -95), (-275, -95), (-275, -55)])
sketch20.addConstraint(Sketcher.Constraint("Vertical", 0))
sketch20.addConstraint(Sketcher.Constraint("Horizontal", 1))
sketch20.addConstraint(Sketcher.Constraint("Vertical", 2))
sketch20.addConstraint(Sketcher.Constraint("Horizontal", 3))
sketch20.addConstraint(Sketcher.Constraint("DistanceX", 1, 2, 1, 1, 550.0))
sketch20.addConstraint(Sketcher.Constraint("DistanceY", 0, 2, 0, 1, 40.0))
sketch20.addConstraint(Sketcher.Constraint("DistanceX", -1, 1, 0, 2, 275.0))
sketch20.addConstraint(Sketcher.Constraint("DistanceY", 0, 2, -1, 1, 95.0))
pad20 = body26.newObject("PartDesign::Pad", "Pad019")
pad20.Profile = sketch20
pad20.Length = 10
pad20.Reversed = True
body27 = doc.addObject("PartDesign::Body", "Body026")

sketch21 = body27.newObject("Sketcher::SketchObject", "Sketch020")
sketch21.AttachmentSupport = (doc.getObject("XZ_Plane026"), [""])
sketch21.MapMode = "FlatFace"
sketch21.AttachmentOffset = App.Placement(V(0, 0, -200), App.Rotation())
add_polygon(sketch21, [(275, -105), (275, -145), (-275, -145), (-275, -105)])
sketch21.addConstraint(Sketcher.Constraint("Vertical", 0))
sketch21.addConstraint(Sketcher.Constraint("Horizontal", 1))
sketch21.addConstraint(Sketcher.Constraint("Vertical", 2))
sketch21.addConstraint(Sketcher.Constraint("Horizontal", 3))
sketch21.addConstraint(Sketcher.Constraint("DistanceX", 1, 2, 1, 1, 550.0))
sketch21.addConstraint(Sketcher.Constraint("DistanceY", 0, 2, 0, 1, 40.0))
sketch21.addConstraint(Sketcher.Constraint("DistanceX", -1, 1, 0, 2, 275.0))
sketch21.addConstraint(Sketcher.Constraint("DistanceY", 0, 2, -1, 1, 145.0))
pad21 = body27.newObject("PartDesign::Pad", "Pad020")
pad21.Profile = sketch21
pad21.Length = 10
pad21.Reversed = True
body28 = doc.addObject("PartDesign::Body", "Body027")

sketch22 = body28.newObject("Sketcher::SketchObject", "Sketch021")
sketch22.AttachmentSupport = (doc.getObject("XZ_Plane027"), [""])
sketch22.MapMode = "FlatFace"
sketch22.AttachmentOffset = App.Placement(V(0, 0, -200), App.Rotation())
add_polygon(sketch22, [(275, -155), (275, -195), (-275, -195), (-275, -155)])
sketch22.addConstraint(Sketcher.Constraint("Vertical", 0))
sketch22.addConstraint(Sketcher.Constraint("Horizontal", 1))
sketch22.addConstraint(Sketcher.Constraint("Vertical", 2))
sketch22.addConstraint(Sketcher.Constraint("Horizontal", 3))
sketch22.addConstraint(Sketcher.Constraint("DistanceX", 1, 2, 1, 1, 550.0))
sketch22.addConstraint(Sketcher.Constraint("DistanceY", 0, 2, 0, 1, 40.0))
sketch22.addConstraint(Sketcher.Constraint("DistanceX", -1, 1, 0, 2, 275.0))
sketch22.addConstraint(Sketcher.Constraint("DistanceY", 0, 2, -1, 1, 195.0))
pad22 = body28.newObject("PartDesign::Pad", "Pad021")
pad22.Profile = sketch22
pad22.Length = 10
pad22.Reversed = True

doc.recompute()
